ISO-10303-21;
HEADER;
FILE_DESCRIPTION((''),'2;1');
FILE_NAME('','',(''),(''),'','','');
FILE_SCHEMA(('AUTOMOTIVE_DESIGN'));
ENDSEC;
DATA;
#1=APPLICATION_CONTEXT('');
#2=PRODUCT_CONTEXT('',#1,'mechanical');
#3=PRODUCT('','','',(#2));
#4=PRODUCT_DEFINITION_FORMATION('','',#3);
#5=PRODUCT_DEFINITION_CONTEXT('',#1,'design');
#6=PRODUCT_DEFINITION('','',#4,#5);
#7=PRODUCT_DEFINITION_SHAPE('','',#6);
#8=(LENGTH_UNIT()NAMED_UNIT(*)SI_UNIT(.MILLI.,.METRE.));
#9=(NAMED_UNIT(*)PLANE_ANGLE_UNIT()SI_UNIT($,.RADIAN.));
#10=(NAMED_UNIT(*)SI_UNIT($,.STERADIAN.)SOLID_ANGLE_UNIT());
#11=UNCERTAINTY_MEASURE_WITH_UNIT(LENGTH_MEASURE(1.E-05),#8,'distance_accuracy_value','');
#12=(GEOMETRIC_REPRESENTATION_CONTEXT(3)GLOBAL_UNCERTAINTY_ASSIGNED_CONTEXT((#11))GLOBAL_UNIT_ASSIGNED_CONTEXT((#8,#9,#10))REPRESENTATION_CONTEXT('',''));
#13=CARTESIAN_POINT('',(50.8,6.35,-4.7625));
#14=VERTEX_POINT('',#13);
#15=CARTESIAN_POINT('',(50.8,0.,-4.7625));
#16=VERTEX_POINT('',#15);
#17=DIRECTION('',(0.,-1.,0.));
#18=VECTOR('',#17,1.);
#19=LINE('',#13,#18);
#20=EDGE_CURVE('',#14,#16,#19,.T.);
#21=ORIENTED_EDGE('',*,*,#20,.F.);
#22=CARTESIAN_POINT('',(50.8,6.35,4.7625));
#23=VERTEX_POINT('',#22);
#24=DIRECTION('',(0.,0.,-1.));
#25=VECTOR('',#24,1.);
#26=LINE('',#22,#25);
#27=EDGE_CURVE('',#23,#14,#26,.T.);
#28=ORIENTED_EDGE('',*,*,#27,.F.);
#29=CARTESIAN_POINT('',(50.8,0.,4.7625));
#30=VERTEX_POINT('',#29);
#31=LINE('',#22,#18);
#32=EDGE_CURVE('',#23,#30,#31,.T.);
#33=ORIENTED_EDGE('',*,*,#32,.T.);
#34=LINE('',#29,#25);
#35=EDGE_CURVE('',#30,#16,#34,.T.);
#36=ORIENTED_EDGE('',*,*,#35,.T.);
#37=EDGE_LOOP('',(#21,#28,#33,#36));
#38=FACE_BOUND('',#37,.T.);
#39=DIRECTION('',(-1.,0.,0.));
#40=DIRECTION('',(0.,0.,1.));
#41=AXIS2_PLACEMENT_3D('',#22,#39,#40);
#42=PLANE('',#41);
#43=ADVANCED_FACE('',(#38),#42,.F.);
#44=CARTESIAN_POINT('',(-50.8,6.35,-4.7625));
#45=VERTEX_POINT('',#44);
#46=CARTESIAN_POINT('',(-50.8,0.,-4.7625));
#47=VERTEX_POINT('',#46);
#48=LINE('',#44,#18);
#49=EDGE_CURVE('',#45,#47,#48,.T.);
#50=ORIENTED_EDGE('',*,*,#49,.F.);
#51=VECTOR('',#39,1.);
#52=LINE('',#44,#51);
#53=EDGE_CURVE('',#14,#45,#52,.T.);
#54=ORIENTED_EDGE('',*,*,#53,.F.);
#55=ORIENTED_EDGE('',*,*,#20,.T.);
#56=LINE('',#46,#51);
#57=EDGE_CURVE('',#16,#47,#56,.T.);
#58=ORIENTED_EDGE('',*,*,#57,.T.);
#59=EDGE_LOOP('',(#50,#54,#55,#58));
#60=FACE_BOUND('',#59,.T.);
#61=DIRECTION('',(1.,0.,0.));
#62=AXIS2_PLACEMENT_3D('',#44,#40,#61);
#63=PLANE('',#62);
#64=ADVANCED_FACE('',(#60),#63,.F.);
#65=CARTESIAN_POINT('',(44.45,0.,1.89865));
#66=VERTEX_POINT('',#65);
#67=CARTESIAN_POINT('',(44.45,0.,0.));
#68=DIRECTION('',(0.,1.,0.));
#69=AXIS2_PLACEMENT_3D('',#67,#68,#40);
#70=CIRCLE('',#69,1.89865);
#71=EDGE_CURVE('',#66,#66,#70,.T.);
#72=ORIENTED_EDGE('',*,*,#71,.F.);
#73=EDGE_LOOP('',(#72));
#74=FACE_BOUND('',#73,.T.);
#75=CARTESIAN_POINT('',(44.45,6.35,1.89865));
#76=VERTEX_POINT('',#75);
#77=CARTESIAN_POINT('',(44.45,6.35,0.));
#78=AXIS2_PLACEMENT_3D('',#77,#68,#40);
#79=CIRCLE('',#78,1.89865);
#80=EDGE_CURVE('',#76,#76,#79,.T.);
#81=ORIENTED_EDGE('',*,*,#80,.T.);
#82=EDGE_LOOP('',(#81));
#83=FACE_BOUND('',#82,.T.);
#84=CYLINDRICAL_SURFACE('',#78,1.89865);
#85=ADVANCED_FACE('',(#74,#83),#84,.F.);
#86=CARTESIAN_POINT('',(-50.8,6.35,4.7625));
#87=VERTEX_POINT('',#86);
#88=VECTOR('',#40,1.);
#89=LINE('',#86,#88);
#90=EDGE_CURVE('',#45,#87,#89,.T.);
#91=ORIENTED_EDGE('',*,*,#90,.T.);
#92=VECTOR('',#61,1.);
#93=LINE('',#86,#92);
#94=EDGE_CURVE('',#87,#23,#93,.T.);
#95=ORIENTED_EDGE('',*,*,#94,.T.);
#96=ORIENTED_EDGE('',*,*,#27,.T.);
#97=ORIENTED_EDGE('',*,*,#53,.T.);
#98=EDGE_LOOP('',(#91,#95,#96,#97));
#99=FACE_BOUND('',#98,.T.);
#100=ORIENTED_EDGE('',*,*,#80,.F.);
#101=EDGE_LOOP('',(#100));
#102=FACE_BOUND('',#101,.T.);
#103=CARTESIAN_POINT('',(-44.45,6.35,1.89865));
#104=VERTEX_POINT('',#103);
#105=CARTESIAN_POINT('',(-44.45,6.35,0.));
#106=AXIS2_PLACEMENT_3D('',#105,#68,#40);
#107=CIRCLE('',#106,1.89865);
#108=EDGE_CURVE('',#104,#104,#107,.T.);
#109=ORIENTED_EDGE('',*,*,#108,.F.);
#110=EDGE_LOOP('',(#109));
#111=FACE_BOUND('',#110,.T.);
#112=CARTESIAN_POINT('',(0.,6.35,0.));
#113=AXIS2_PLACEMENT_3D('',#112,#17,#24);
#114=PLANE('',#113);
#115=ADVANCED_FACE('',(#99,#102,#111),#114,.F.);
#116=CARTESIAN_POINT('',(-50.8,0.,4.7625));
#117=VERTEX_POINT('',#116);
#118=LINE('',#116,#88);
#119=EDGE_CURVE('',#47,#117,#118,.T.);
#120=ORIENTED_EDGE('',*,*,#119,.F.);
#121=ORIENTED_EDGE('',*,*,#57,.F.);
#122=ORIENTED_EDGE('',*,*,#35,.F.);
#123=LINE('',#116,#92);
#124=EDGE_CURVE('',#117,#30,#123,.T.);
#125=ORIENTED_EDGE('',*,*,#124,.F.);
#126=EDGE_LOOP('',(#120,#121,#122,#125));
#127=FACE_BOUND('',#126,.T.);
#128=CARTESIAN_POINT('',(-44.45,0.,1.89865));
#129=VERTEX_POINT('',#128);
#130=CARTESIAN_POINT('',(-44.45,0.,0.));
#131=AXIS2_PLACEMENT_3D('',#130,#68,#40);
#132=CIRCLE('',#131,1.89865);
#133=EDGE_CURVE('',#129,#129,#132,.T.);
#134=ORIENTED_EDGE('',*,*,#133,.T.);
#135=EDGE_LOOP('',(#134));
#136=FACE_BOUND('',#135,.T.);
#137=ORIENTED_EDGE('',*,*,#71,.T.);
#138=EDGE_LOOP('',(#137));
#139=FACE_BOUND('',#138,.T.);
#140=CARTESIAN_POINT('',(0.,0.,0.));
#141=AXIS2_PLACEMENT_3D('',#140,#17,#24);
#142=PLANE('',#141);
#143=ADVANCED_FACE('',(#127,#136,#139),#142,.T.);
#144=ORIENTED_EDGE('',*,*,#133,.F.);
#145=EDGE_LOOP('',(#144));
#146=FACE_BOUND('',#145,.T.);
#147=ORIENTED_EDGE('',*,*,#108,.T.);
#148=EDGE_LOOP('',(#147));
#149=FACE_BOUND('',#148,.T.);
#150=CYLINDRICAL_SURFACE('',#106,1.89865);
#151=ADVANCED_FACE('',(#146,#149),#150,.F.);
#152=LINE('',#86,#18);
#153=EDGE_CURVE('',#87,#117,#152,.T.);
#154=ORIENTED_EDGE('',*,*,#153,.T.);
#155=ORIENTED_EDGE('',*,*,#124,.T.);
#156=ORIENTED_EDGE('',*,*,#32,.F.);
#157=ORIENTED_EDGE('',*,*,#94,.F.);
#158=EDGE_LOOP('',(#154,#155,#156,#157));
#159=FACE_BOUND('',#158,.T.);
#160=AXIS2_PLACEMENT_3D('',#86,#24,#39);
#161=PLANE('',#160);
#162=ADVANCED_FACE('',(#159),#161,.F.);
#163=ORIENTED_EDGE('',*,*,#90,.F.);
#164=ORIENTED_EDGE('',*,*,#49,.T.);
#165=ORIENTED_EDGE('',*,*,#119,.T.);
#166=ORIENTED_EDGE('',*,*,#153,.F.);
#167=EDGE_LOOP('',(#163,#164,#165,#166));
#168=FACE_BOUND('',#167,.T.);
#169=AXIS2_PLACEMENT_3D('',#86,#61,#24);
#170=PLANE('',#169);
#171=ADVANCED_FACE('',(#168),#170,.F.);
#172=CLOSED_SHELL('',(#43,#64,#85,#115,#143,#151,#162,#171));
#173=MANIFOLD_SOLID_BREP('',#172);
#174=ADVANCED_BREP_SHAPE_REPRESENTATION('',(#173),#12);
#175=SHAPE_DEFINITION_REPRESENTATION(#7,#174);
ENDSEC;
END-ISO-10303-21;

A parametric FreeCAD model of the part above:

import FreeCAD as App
import Part
import Sketcher
from FreeCAD import Vector
Q = App.Units.Quantity


def add_polygon(sketch, points):
    """Adds a closed chain of lines whose ends are joined by coincident constraints."""
    first, n = sketch.GeometryCount, len(points)
    for a, b in zip(points, points[1:] + points[:1]):
        sketch.addGeometry(Part.LineSegment(App.Vector(*a, 0), App.Vector(*b, 0)), False)
    for i in range(n):
        sketch.addConstraint(Sketcher.Constraint("Coincident", first + i, 2, first + (i + 1) % n, 1))

doc = App.newDocument("Part")
body = doc.addObject("PartDesign::Body", "Body")

# Sketch on XZ plane
sketch1 = doc.addObject("Sketcher::SketchObject", "Sketch")
body.addObject(sketch1)
sketch1.AttachmentSupport = (doc.XZ_Plane, [""])
sketch1.MapMode = "FlatFace"
add_polygon(sketch1, [(-51, -5), (-51, 5), (51, 5), (51, -5)])  # lines 0-3
sketch1.addConstraint([
    Sketcher.Constraint("Vertical", 0),
    Sketcher.Constraint("Horizontal", 1),
    Sketcher.Constraint("Vertical", 2),
    Sketcher.Constraint("Horizontal", 3),
    Sketcher.Constraint("Symmetric", 0, 2, 2, 2, -1, 1),
    Sketcher.Constraint("DistanceX", 1, 1, 1, 2, Q("4 in")),
    Sketcher.Constraint("DistanceY", 0, 1, 0, 2, Q("0.375 in")),
])
pad1 = doc.addObject("PartDesign::Pad", "Pad")
body.addObject(pad1)
pad1.Profile = sketch1
pad1.Length = Q("0.25 in")
pad1.Reversed = True

# Sketch on XZ plane
sketch2 = doc.addObject("Sketcher::SketchObject", "Sketch001")
body.addObject(sketch2)
sketch2.AttachmentSupport = (doc.XZ_Plane, [""])
sketch2.MapMode = "FlatFace"
sketch2.AttachmentOffset = App.Placement(Vector(0, 0, -0.25 * 25.4), App.Rotation())
sketch2.addGeometry([
    Part.Circle(Vector(-44.5, 0, 0), Vector(0, 0, 1), 1.9),
    Part.Circle(Vector(44.5, 0, 0), Vector(0, 0, 1), 1.9),
], False)
sketch2.addConstraint([
    Sketcher.Constraint("Equal", 0, 1),
    Sketcher.Constraint("Symmetric", 0, 3, 1, 3, -1, 1),
    Sketcher.Constraint("PointOnObject", 0, 3, -1),
    Sketcher.Constraint("Diameter", 0, Q("0.1495 in")),
    Sketcher.Constraint("DistanceX", 0, 3, 1, 3, Q("3.5 in")),
])
doc.recompute()
hole = doc.addObject("PartDesign::Hole", "Hole")
body.addObject(hole)
hole.Profile = sketch2
hole.ThreadType = "None"
hole.Diameter = Q("0.1495 in")
hole.DepthType = "ThroughAll"
hole.Reversed = True

doc.recompute()
